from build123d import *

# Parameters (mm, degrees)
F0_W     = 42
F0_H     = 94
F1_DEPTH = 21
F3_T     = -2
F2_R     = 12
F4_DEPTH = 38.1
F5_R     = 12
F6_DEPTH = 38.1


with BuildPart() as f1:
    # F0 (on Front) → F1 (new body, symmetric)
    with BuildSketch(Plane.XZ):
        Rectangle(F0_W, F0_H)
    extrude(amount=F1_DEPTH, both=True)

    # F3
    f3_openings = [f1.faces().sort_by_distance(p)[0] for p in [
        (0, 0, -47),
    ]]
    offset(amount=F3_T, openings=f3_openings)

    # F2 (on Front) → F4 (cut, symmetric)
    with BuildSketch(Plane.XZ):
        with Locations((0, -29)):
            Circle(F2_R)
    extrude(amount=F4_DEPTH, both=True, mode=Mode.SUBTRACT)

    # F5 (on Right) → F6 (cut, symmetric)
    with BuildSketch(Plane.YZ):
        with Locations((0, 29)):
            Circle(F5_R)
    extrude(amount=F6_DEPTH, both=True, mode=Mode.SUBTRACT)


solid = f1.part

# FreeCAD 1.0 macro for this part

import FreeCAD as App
import Part
import Sketcher

V = App.Vector


def faces_at(feature, points):
    """Names of the faces that lie closest to the given points."""
    faces = feature.Shape.Faces
    near = lambda p: min(range(len(faces)), key=lambda i: faces[i].distToShape(Part.Vertex(*p))[0])
    return sorted({f"Face{near(p) + 1}" for p in points})

doc = App.newDocument("Part")
body = doc.addObject("PartDesign::Body", "Body")

# Sketch on XZ plane
sketch1 = doc.addObject("Sketcher::SketchObject", "Sketch")
body.addObject(sketch1)
sketch1.AttachmentSupport = (doc.XZ_Plane, [""])
sketch1.MapMode = "FlatFace"
sketch1.addGeometry(Part.LineSegment(V(-21, 47, 0), V(-21, -47, 0)), False)
sketch1.addGeometry(Part.LineSegment(V(-21, -47, 0), V(21, -47, 0)), False)
sketch1.addGeometry(Part.LineSegment(V(21, -47, 0), V(21, 47, 0)), False)
sketch1.addGeometry(Part.LineSegment(V(21, 47, 0), V(-21, 47, 0)), False)
sketch1.addConstraint(Sketcher.Constraint("Coincident", 0, 2, 1, 1))
sketch1.addConstraint(Sketcher.Constraint("Coincident", 1, 2, 2, 1))
sketch1.addConstraint(Sketcher.Constraint("Coincident", 2, 2, 3, 1))
sketch1.addConstraint(Sketcher.Constraint("Coincident", 3, 2, 0, 1))
sketch1.addConstraint(Sketcher.Constraint("Vertical", 0))
sketch1.addConstraint(Sketcher.Constraint("Horizontal", 1))
sketch1.addConstraint(Sketcher.Constraint("Vertical", 2))
sketch1.addConstraint(Sketcher.Constraint("Horizontal", 3))
sketch1.addConstraint(Sketcher.Constraint("Symmetric", 0, 2, 2, 2, -1, 1))
sketch1.addConstraint(Sketcher.Constraint("DistanceX", 1, 1, 1, 2, 42.0))
sketch1.addConstraint(Sketcher.Constraint("DistanceY", 0, 2, 0, 1, 94.0))
pad1 = doc.addObject("PartDesign::Pad", "Pad")
body.addObject(pad1)
pad1.Profile = sketch1
pad1.Length = 42
pad1.Midplane = True
doc.recompute()

thickness = doc.addObject("PartDesign::Thickness", "Thickness")
body.addObject(thickness)
thickness.Base = (pad1, faces_at(pad1, [(0, 0, -47)]))
thickness.Value = 2
thickness.Reversed = True
thickness.Join = "Arc"

# Sketch on XZ plane
sketch2 = doc.addObject("Sketcher::SketchObject", "Sketch001")
body.addObject(sketch2)
sketch2.AttachmentSupport = (doc.XZ_Plane, [""])
sketch2.MapMode = "FlatFace"
sketch2.addGeometry(Part.Circle(V(0, -29, 0), V(0, 0, 1), 12), False)
sketch2.addConstraint(Sketcher.Constraint("PointOnObject", 0, 3, -2))
sketch2.addConstraint(Sketcher.Constraint("Diameter", 0, 24.0))
sketch2.addConstraint(Sketcher.Constraint("DistanceY", 0, 3, -1, 1, 29.0))
pocket1 = doc.addObject("PartDesign::Pocket", "Pocket")
body.addObject(pocket1)
pocket1.Profile = sketch2
pocket1.Length = 76.2
pocket1.Midplane = True

# Sketch on YZ plane
sketch3 = doc.addObject("Sketcher::SketchObject", "Sketch002")
body.addObject(sketch3)
sketch3.AttachmentSupport = (doc.YZ_Plane, [""])
sketch3.MapMode = "FlatFace"
sketch3.addGeometry(Part.Circle(V(0, 29, 0), V(0, 0, 1), 12), False)
sketch3.addConstraint(Sketcher.Constraint("PointOnObject", 0, 3, -2))
sketch3.addConstraint(Sketcher.Constraint("Diameter", 0, 24.0))
sketch3.addConstraint(Sketcher.Constraint("DistanceY", -1, 1, 0, 3, 29.0))
pocket2 = doc.addObject("PartDesign::Pocket", "Pocket001")
body.addObject(pocket2)
pocket2.Profile = sketch3
pocket2.Length = 76.2
pocket2.Midplane = True

doc.recompute()
